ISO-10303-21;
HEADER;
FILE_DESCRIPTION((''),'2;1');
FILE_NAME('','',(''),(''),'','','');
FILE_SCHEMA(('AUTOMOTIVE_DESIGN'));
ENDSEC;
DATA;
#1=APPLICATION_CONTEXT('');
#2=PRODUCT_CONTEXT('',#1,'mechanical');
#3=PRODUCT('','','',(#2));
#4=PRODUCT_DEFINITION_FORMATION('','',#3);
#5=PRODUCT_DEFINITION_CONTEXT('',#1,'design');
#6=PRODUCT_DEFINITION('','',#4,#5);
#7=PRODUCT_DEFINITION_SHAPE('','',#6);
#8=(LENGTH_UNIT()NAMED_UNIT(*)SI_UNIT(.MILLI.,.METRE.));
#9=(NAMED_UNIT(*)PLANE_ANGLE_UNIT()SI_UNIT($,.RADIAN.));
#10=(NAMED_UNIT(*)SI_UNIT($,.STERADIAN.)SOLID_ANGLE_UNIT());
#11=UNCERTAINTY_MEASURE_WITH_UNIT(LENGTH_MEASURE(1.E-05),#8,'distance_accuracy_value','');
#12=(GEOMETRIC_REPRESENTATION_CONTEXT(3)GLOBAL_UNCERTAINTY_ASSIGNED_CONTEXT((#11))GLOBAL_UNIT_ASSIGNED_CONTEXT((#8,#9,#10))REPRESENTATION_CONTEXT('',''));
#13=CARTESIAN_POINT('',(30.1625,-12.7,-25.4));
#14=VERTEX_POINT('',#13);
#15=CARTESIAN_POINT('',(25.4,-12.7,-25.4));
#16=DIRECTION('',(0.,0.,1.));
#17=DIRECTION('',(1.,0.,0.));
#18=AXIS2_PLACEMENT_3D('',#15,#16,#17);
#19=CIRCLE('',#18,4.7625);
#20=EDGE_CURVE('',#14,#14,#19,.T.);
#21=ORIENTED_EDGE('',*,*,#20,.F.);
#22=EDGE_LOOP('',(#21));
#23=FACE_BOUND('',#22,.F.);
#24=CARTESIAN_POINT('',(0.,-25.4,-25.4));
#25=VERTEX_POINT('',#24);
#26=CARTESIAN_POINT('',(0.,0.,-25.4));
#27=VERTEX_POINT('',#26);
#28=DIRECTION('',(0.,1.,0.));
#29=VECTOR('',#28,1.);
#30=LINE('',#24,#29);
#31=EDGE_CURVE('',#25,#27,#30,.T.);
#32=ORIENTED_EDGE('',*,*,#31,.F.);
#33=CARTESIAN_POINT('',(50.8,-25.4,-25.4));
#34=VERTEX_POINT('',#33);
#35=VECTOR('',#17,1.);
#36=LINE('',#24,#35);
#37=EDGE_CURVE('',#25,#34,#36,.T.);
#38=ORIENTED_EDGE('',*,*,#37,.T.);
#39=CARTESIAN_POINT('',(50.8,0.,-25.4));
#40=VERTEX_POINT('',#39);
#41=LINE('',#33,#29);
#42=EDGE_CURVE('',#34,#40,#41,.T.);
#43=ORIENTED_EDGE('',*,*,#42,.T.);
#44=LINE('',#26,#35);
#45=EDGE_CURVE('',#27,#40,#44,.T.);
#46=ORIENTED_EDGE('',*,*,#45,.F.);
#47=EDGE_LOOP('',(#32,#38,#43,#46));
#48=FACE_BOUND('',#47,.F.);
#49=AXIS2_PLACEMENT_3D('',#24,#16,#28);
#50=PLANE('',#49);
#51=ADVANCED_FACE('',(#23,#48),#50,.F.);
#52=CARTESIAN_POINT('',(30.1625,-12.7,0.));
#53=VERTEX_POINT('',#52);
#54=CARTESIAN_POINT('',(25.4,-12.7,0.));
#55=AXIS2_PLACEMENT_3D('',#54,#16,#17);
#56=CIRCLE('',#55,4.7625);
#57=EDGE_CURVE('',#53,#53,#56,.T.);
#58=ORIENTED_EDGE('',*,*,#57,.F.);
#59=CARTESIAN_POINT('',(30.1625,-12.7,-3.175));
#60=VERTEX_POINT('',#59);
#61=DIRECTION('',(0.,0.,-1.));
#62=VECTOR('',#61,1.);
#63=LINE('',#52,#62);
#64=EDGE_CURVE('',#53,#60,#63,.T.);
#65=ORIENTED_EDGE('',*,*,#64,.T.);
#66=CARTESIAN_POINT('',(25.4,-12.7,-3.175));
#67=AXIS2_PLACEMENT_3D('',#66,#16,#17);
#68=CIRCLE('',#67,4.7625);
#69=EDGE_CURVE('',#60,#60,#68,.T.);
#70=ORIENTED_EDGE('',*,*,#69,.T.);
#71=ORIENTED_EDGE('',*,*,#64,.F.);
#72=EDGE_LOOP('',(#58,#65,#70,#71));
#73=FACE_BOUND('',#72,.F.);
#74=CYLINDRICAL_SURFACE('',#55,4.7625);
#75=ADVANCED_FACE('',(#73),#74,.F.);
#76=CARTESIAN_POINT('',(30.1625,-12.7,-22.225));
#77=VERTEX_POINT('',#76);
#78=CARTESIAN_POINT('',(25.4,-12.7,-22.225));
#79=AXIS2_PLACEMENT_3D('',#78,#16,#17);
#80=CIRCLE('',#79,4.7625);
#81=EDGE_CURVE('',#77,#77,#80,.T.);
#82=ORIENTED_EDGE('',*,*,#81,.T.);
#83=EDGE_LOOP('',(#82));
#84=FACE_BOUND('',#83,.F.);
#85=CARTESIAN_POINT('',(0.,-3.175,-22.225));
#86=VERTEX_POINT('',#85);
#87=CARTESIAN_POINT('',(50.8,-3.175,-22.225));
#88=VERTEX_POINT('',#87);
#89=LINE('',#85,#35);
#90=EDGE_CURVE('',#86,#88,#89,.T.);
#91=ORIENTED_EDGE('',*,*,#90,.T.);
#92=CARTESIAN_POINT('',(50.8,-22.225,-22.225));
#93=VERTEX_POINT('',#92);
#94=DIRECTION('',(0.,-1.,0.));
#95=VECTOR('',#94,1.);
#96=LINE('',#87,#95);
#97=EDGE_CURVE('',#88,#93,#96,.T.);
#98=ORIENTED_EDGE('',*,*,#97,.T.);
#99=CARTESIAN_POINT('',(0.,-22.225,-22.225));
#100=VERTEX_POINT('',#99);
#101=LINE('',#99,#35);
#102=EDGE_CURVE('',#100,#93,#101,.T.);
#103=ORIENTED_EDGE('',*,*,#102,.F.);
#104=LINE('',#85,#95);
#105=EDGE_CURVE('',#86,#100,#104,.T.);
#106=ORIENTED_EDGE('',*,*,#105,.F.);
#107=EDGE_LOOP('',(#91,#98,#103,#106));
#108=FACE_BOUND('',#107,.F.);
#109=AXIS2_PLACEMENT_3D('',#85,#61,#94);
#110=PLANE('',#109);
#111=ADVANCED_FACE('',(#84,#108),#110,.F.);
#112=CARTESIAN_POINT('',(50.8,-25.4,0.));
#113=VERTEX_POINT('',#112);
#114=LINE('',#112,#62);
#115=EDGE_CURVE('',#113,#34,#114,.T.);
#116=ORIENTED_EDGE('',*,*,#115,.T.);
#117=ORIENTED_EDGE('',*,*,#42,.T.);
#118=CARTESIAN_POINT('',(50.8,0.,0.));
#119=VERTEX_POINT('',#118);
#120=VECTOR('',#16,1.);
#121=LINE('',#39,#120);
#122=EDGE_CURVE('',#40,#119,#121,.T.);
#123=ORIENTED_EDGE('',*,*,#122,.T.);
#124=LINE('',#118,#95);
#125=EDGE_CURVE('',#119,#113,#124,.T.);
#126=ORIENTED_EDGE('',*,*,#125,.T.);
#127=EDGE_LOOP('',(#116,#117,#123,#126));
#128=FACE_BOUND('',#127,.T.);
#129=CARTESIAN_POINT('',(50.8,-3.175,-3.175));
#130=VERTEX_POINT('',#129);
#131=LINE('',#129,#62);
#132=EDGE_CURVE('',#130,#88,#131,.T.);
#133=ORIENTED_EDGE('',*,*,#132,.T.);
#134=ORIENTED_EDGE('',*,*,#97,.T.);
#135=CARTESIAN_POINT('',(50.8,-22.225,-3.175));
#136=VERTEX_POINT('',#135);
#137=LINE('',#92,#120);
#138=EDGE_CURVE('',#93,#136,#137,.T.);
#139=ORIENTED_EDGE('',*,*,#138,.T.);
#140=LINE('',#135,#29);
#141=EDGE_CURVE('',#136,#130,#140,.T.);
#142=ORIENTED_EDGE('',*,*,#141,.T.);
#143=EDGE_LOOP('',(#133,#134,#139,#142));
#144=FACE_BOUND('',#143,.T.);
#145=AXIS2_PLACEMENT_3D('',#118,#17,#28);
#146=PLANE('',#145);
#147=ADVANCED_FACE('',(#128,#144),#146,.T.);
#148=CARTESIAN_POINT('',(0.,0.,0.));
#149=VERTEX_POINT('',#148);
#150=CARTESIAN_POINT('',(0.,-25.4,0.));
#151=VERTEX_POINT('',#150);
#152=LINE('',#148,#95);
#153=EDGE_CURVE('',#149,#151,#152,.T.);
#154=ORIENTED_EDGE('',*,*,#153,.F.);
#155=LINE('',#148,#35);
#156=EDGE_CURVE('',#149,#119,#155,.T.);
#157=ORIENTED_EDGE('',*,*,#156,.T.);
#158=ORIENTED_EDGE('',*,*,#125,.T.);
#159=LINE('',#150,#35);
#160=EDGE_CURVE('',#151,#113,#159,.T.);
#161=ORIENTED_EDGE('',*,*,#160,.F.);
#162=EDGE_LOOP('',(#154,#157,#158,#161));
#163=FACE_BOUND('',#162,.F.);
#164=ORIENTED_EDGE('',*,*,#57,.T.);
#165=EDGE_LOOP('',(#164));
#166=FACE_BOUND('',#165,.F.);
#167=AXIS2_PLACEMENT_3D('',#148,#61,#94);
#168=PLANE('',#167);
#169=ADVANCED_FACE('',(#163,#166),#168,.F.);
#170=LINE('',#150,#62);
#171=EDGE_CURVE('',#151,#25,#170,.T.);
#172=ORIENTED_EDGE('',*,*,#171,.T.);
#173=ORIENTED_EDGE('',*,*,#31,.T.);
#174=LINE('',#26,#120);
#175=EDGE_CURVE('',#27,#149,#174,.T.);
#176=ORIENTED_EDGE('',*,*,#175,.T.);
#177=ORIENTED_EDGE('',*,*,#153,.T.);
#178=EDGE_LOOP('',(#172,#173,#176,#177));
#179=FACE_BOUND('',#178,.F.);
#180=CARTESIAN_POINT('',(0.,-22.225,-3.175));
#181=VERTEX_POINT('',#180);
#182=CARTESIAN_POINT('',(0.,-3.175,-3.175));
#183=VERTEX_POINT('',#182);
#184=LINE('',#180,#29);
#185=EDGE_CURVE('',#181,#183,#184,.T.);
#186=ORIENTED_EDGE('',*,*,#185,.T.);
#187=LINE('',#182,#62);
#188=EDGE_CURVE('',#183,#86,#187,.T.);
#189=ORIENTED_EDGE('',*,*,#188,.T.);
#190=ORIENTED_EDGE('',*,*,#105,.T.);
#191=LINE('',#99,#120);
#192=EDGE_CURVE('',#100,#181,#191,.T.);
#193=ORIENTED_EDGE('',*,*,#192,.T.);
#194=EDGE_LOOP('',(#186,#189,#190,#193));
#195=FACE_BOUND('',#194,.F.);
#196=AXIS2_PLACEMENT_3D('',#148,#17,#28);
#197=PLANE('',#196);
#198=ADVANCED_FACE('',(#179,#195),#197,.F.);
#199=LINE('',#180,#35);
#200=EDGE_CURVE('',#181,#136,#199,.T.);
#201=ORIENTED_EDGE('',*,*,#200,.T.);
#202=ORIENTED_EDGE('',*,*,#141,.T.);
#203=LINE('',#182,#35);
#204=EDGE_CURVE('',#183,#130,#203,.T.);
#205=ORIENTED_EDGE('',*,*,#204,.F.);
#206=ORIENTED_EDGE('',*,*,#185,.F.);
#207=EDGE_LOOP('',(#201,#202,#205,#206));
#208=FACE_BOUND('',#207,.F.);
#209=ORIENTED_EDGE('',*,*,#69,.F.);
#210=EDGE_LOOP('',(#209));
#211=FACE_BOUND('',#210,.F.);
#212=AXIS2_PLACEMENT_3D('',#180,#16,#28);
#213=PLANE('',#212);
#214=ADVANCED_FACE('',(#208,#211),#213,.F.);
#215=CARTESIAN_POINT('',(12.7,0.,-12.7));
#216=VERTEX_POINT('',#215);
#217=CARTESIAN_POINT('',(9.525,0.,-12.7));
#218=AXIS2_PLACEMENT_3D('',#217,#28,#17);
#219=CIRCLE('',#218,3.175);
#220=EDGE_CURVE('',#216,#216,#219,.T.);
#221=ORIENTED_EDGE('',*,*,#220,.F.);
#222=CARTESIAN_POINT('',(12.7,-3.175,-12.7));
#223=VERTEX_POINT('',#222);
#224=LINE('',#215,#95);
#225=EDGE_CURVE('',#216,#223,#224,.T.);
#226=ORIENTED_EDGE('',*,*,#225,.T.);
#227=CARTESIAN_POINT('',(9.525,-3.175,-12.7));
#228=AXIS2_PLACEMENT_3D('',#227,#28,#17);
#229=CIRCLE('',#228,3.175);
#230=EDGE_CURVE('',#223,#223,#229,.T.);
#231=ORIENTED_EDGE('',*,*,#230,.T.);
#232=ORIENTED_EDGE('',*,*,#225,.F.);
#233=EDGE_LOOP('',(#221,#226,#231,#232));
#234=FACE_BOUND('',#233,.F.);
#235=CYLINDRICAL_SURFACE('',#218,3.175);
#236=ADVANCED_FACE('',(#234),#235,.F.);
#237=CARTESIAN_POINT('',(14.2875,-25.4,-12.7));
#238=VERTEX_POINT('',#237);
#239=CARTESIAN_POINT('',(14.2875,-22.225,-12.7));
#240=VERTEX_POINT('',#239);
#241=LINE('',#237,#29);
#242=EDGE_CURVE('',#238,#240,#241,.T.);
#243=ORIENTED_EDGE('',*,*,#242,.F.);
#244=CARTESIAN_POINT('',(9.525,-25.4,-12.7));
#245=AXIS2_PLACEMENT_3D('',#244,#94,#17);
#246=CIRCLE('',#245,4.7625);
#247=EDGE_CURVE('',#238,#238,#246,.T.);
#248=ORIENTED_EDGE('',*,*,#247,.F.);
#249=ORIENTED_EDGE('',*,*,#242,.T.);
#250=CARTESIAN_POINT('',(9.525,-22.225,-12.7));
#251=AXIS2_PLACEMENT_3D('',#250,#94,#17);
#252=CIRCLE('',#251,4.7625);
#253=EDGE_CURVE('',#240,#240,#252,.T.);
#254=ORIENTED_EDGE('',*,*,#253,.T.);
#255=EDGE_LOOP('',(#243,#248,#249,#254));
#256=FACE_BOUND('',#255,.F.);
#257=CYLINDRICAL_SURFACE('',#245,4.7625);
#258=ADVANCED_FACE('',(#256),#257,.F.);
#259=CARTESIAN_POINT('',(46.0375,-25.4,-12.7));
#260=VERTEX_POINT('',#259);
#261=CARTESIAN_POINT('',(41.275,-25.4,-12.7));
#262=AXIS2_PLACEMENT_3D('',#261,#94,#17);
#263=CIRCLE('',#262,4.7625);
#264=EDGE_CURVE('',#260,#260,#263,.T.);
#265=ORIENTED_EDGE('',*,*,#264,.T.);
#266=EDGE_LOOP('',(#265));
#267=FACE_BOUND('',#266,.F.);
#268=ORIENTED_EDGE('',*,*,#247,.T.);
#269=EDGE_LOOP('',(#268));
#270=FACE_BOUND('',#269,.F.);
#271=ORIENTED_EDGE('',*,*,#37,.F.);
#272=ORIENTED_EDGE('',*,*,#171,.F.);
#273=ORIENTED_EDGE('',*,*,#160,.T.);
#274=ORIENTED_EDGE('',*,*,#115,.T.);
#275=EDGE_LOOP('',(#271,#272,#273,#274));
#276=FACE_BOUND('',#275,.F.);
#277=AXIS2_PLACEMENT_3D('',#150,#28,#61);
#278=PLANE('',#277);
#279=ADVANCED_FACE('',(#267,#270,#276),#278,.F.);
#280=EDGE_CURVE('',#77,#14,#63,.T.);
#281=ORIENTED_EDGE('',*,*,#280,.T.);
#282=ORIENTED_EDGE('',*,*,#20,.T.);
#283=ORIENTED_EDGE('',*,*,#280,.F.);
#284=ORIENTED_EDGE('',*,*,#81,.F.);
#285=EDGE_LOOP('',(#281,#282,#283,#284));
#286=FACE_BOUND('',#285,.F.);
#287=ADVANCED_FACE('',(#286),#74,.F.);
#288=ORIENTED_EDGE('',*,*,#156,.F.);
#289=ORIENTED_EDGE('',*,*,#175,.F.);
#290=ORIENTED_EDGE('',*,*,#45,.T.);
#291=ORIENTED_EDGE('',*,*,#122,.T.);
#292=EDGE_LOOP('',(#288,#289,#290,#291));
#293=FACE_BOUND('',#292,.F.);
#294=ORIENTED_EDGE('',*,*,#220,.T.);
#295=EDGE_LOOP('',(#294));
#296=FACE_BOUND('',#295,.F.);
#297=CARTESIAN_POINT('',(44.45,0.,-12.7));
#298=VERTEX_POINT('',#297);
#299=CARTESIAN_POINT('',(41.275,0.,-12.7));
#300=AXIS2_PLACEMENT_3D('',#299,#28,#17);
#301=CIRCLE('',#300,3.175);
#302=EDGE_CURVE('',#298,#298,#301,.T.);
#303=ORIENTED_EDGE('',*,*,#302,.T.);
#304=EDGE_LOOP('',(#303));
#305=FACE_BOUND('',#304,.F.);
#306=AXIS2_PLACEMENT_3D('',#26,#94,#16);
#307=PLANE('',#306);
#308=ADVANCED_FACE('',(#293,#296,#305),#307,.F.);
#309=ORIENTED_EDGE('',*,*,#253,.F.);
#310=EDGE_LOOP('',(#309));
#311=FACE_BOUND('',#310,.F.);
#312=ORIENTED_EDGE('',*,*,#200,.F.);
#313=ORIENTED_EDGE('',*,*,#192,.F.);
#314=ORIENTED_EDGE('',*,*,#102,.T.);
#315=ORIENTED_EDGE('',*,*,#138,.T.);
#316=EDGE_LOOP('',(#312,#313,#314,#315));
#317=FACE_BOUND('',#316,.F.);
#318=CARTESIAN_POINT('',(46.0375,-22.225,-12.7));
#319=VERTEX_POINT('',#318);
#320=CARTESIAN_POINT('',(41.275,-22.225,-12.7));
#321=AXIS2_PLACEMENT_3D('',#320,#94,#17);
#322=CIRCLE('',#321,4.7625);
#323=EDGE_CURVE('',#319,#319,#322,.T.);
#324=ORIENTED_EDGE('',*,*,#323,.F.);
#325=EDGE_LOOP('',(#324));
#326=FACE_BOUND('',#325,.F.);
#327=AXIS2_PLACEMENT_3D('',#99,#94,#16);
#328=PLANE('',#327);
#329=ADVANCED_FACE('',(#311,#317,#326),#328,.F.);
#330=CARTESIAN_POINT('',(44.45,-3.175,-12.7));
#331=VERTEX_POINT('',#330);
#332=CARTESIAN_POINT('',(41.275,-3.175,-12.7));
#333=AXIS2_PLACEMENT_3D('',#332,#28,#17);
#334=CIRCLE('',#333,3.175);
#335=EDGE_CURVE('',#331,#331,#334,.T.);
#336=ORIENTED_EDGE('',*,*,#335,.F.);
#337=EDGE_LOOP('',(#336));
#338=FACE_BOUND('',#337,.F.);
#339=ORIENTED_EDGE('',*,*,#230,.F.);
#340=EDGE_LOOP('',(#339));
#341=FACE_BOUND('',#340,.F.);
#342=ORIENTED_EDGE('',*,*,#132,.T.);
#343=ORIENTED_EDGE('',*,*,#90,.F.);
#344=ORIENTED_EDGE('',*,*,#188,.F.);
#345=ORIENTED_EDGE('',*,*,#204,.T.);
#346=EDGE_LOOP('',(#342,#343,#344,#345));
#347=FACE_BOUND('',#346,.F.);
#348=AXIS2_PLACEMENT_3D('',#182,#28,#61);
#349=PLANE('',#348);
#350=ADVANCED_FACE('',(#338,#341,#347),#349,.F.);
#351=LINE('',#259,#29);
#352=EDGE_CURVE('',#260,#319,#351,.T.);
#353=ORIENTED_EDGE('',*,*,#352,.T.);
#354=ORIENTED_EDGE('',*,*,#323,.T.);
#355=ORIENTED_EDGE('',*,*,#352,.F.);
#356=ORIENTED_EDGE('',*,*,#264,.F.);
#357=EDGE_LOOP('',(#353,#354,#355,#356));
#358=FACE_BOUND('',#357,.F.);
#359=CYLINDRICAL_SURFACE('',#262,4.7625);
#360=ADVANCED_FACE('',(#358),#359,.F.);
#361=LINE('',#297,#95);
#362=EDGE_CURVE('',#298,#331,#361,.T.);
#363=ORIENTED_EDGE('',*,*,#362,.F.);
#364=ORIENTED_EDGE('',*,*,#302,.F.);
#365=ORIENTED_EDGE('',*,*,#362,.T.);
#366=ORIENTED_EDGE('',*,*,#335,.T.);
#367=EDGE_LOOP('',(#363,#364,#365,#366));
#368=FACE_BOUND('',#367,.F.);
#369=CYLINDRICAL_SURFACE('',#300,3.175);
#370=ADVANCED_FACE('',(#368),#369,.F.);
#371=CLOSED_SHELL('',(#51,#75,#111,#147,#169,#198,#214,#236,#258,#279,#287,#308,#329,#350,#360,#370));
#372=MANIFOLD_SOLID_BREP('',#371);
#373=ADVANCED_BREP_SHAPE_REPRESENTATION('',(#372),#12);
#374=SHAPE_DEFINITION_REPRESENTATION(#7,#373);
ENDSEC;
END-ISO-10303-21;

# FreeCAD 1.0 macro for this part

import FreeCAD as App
import Part
import Sketcher
Q = App.Units.Quantity

doc = App.newDocument("Part")
params = doc.addObject("Spreadsheet::Sheet", "Params")
for row, (alias, value) in enumerate([
    ("sketch1_width", "1 in"),
    ("pad1_length", "2 in"),
    ("sketch2_diameter", "0.375 in"),
    ("pocket1_length", "2 in"),
    ("sketch3_diameter", "0.25 in"),
    ("pocket2_length", "0.125 in"),
    ("sketch4_diameter", "0.375 in"),
    ("pocket3_length", "0.125 in"),
], start=1):
    params.set(f"A{row}", alias)
    params.set(f"B{row}", "=" + value)
    params.setAlias(f"B{row}", alias)

body = doc.addObject("PartDesign::Body", "Body")

# Sketch on YZ plane
sketch1 = doc.addObject("Sketcher::SketchObject", "Sketch")
body.addObject(sketch1)
sketch1.AttachmentSupport = (doc.YZ_Plane, [""])
sketch1.MapMode = "FlatFace"
sketch1.addGeometry([
    Part.LineSegment(App.Vector(0, -25, 0), App.Vector(0, 0, 0)),  # 0
    Part.LineSegment(App.Vector(0, 0, 0), App.Vector(-25, 0, 0)),  # 1
    Part.LineSegment(App.Vector(-25, 0, 0), App.Vector(-25, -25, 0)),  # 2
    Part.LineSegment(App.Vector(-25, -25, 0), App.Vector(0, -25, 0)),  # 3
    Part.LineSegment(App.Vector(-3, -3, 0), App.Vector(-3, -22, 0)),  # 4
    Part.LineSegment(App.Vector(-3, -22, 0), App.Vector(-22, -22, 0)),  # 5
    Part.LineSegment(App.Vector(-22, -22, 0), App.Vector(-22, -3, 0)),  # 6
    Part.LineSegment(App.Vector(-22, -3, 0), App.Vector(-3, -3, 0)),  # 7
], False)
sketch1.addConstraint([
    Sketcher.Constraint("Coincident", 0, 2, 1, 1),
    Sketcher.Constraint("Coincident", 1, 2, 2, 1),
    Sketcher.Constraint("Coincident", 2, 2, 3, 1),
    Sketcher.Constraint("Coincident", 3, 2, 0, 1),
    Sketcher.Constraint("Coincident", 4, 2, 5, 1),
    Sketcher.Constraint("Coincident", 5, 2, 6, 1),
    Sketcher.Constraint("Coincident", 6, 2, 7, 1),
    Sketcher.Constraint("Coincident", 7, 2, 4, 1),
    Sketcher.Constraint("Vertical", 0),
    Sketcher.Constraint("Horizontal", 1),
    Sketcher.Constraint("Vertical", 2),
    Sketcher.Constraint("Horizontal", 3),
    Sketcher.Constraint("Vertical", 4),
    Sketcher.Constraint("Horizontal", 5),
    Sketcher.Constraint("Vertical", 6),
    Sketcher.Constraint("Horizontal", 7),
    Sketcher.Constraint("Coincident", 0, 2, -1, 1),
    Sketcher.Constraint("Equal", 3, 0),
    Sketcher.Constraint("Equal", 7, 4),
    Sketcher.Constraint("DistanceX", 1, 2, 1, 1, Q("1 in")),
    Sketcher.Constraint("DistanceX", 4, 2, -1, 1, Q("0.125 in")),
    Sketcher.Constraint("DistanceY", 6, 2, -1, 1, Q("0.125 in")),
    Sketcher.Constraint("DistanceY", 3, 2, 4, 2, Q("0.125 in")),
])
sketch1.setExpression("Constraints[19]", "Params.sketch1_width")
pad1 = doc.addObject("PartDesign::Pad", "Pad")
body.addObject(pad1)
pad1.Profile = sketch1
pad1.setExpression("Length", "Params.pad1_length")

# Sketch on XY plane
sketch2 = doc.addObject("Sketcher::SketchObject", "Sketch001")
body.addObject(sketch2)
sketch2.AttachmentSupport = (doc.XY_Plane, [""])
sketch2.MapMode = "FlatFace"
sketch2.addGeometry(Part.Circle(App.Vector(25.4, -12.7, 0), App.Vector(0, 0, 1), 4.8), False)
sketch2.addConstraint([
    Sketcher.Constraint("Diameter", 0, Q("0.375 in")),
    Sketcher.Constraint("DistanceX", -1, 1, 0, 3, Q("1 in")),
    Sketcher.Constraint("DistanceY", 0, 3, -1, 1, Q("0.5 in")),
])
sketch2.setExpression("Constraints[0]", "Params.sketch2_diameter")
pocket1 = doc.addObject("PartDesign::Pocket", "Pocket")
body.addObject(pocket1)
pocket1.Profile = sketch2
pocket1.setExpression("Length", "Params.pocket1_length")

# Sketch on XZ plane
sketch3 = doc.addObject("Sketcher::SketchObject", "Sketch002")
body.addObject(sketch3)
sketch3.AttachmentSupport = (doc.XZ_Plane, [""])
sketch3.MapMode = "FlatFace"
sketch3.addGeometry([
    Part.Circle(App.Vector(41.3, -12.7, 0), App.Vector(0, 0, 1), 3.2),
    Part.Circle(App.Vector(9.5, -12.7, 0), App.Vector(0, 0, 1), 3.2),
], False)
sketch3.addConstraint([
    Sketcher.Constraint("Equal", 0, 1),
    Sketcher.Constraint("Horizontal", 0, 3, 1, 3),
    Sketcher.Constraint("Diameter", 0, Q("0.25 in")),
    Sketcher.Constraint("DistanceY", 0, 3, -1, 1, Q("0.5 in")),
    Sketcher.Constraint("DistanceX", -1, 1, 1, 3, Q("0.375 in")),
    Sketcher.Constraint("DistanceX", 1, 3, 0, 3, Q("1.25 in")),
])
sketch3.setExpression("Constraints[2]", "Params.sketch3_diameter")
pocket2 = doc.addObject("PartDesign::Pocket", "Pocket001")
body.addObject(pocket2)
pocket2.Profile = sketch3
pocket2.setExpression("Length", "Params.pocket2_length")
pocket2.Reversed = True

# Sketch on XZ plane
sketch4 = doc.addObject("Sketcher::SketchObject", "Sketch003")
body.addObject(sketch4)
sketch4.AttachmentSupport = (doc.XZ_Plane, [""])
sketch4.MapMode = "FlatFace"
sketch4.AttachmentOffset = App.Placement(App.Vector(0, 0, 1 * 25.4), App.Rotation())
sketch4.addGeometry([
    Part.Circle(App.Vector(41.3, -12.7, 0), App.Vector(0, 0, 1), 4.8),
    Part.Circle(App.Vector(9.5, -12.7, 0), App.Vector(0, 0, 1), 4.8),
], False)
sketch4.addConstraint([
    Sketcher.Constraint("Equal", 0, 1),
    Sketcher.Constraint("Horizontal", 0, 3, 1, 3),
    Sketcher.Constraint("Diameter", 0, Q("0.375 in")),
    Sketcher.Constraint("DistanceY", 0, 3, -1, 1, Q("0.5 in")),
    Sketcher.Constraint("DistanceX", -1, 1, 1, 3, Q("0.375 in")),
    Sketcher.Constraint("DistanceX", 1, 3, 0, 3, Q("1.25 in")),
])
sketch4.setExpression("Constraints[2]", "Params.sketch4_diameter")
pocket3 = doc.addObject("PartDesign::Pocket", "Pocket002")
body.addObject(pocket3)
pocket3.Profile = sketch4
pocket3.setExpression("Length", "Params.pocket3_length")

doc.recompute()
